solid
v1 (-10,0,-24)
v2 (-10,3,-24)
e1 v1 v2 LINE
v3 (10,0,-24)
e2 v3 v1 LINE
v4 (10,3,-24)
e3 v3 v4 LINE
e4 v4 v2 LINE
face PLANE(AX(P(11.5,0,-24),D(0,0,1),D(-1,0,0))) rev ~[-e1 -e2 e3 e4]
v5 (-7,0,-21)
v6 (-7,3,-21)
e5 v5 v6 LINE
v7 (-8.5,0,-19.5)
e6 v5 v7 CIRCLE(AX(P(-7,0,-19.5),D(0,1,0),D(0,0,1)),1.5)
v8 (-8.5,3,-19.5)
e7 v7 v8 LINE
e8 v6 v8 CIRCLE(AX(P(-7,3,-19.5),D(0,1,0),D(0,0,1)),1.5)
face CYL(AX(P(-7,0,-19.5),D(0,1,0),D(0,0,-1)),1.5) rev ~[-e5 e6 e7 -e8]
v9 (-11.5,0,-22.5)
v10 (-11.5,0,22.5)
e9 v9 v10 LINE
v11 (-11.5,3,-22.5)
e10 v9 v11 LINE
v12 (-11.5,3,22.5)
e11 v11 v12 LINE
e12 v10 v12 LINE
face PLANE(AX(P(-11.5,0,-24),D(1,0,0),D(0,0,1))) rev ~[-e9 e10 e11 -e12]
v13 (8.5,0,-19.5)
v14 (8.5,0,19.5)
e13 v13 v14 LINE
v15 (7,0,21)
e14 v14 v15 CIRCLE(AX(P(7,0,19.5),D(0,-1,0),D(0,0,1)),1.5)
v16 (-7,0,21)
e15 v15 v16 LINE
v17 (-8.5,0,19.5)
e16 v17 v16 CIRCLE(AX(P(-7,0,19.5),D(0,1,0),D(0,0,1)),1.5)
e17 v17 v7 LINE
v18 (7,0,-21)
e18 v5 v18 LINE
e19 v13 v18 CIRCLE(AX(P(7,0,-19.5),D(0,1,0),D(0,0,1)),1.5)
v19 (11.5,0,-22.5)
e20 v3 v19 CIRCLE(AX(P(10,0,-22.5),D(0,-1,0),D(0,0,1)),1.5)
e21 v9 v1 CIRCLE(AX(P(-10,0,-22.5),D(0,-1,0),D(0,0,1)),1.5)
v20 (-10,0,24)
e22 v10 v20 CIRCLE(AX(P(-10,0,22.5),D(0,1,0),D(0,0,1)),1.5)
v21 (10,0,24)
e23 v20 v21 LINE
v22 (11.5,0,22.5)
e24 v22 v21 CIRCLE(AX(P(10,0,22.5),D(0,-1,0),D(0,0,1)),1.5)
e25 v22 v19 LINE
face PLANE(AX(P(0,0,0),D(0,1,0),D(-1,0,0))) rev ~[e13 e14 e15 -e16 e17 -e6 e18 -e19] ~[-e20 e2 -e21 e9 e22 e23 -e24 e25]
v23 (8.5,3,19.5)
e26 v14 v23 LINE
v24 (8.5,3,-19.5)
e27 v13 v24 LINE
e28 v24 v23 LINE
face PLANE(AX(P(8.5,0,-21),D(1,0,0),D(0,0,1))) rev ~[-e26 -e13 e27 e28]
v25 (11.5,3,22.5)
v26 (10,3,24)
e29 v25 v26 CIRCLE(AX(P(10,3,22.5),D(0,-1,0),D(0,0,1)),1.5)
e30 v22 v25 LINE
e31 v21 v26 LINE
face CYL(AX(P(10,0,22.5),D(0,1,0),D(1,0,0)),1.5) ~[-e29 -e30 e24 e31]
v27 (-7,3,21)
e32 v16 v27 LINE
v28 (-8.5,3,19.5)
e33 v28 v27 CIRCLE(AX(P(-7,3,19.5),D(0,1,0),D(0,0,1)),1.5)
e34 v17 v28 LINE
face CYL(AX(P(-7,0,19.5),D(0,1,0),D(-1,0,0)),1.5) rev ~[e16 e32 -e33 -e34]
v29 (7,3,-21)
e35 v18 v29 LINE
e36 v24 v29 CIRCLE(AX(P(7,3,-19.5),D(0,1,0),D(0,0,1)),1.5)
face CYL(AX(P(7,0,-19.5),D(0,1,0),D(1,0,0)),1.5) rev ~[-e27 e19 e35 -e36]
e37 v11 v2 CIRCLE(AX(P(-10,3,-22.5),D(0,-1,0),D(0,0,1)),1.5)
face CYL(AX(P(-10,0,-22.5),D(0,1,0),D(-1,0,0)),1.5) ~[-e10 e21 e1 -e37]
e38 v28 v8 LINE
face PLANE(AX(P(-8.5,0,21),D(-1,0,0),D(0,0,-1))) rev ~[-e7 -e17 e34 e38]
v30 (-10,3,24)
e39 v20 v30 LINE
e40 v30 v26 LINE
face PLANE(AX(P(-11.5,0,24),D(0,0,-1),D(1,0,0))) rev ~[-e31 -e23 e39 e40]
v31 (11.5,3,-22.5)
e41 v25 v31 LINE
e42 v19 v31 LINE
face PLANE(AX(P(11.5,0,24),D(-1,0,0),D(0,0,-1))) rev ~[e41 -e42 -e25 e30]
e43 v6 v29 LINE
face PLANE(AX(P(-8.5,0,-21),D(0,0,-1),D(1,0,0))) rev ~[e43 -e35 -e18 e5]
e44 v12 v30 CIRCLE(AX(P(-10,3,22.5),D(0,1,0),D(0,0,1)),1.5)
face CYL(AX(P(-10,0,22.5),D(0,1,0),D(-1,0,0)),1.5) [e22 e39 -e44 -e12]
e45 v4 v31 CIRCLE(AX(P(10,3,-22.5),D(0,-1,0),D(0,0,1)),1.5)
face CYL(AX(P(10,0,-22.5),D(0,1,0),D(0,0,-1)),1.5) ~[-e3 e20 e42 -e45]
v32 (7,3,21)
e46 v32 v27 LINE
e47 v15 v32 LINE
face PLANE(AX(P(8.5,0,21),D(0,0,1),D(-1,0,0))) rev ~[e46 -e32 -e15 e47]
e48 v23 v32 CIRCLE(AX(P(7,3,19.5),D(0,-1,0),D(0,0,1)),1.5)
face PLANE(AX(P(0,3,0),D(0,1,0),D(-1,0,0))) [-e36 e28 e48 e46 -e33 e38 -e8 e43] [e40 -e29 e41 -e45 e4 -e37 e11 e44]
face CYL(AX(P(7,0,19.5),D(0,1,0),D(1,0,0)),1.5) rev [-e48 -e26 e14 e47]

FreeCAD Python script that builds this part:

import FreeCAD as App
import Part
import Sketcher
Q = App.Units.Quantity


def edges_at(feature, points):
    """Names of the edges that pass closest to the given points."""
    edges = feature.Shape.Edges
    near = lambda p: min(range(len(edges)), key=lambda i: edges[i].distToShape(Part.Vertex(*p))[0])
    return sorted({f"Edge{near(p) + 1}" for p in points})

doc = App.newDocument("Part")
body = doc.addObject("PartDesign::Body", "Body")

# Sketch on XZ plane
sketch1 = body.newObject("Sketcher::SketchObject", "Sketch")
sketch1.AttachmentSupport = (doc.getObject("XZ_Plane"), [""])
sketch1.MapMode = "FlatFace"
sketch1.addGeometry(Part.LineSegment(App.Vector(-12, -24, 0), App.Vector(-12, 24, 0)), False)
sketch1.addGeometry(Part.LineSegment(App.Vector(-12, 24, 0), App.Vector(12, 24, 0)), False)
sketch1.addGeometry(Part.LineSegment(App.Vector(12, 24, 0), App.Vector(12, -24, 0)), False)
sketch1.addGeometry(Part.LineSegment(App.Vector(12, -24, 0), App.Vector(-12, -24, 0)), False)
sketch1.addGeometry(Part.LineSegment(App.Vector(8, -21, 0), App.Vector(8, 21, 0)), False)
sketch1.addGeometry(Part.LineSegment(App.Vector(8, 21, 0), App.Vector(-8, 21, 0)), False)
sketch1.addGeometry(Part.LineSegment(App.Vector(-8, 21, 0), App.Vector(-8, -21, 0)), False)
sketch1.addGeometry(Part.LineSegment(App.Vector(-8, -21, 0), App.Vector(8, -21, 0)), False)
sketch1.addConstraint(Sketcher.Constraint("Coincident", 0, 2, 1, 1))
sketch1.addConstraint(Sketcher.Constraint("Coincident", 1, 2, 2, 1))
sketch1.addConstraint(Sketcher.Constraint("Coincident", 2, 2, 3, 1))
sketch1.addConstraint(Sketcher.Constraint("Coincident", 3, 2, 0, 1))
sketch1.addConstraint(Sketcher.Constraint("Coincident", 4, 2, 5, 1))
sketch1.addConstraint(Sketcher.Constraint("Coincident", 5, 2, 6, 1))
sketch1.addConstraint(Sketcher.Constraint("Coincident", 6, 2, 7, 1))
sketch1.addConstraint(Sketcher.Constraint("Coincident", 7, 2, 4, 1))
sketch1.addConstraint(Sketcher.Constraint("Vertical", 0))
sketch1.addConstraint(Sketcher.Constraint("Horizontal", 1))
sketch1.addConstraint(Sketcher.Constraint("Vertical", 2))
sketch1.addConstraint(Sketcher.Constraint("Horizontal", 3))
sketch1.addConstraint(Sketcher.Constraint("Vertical", 4))
sketch1.addConstraint(Sketcher.Constraint("Horizontal", 5))
sketch1.addConstraint(Sketcher.Constraint("Vertical", 6))
sketch1.addConstraint(Sketcher.Constraint("Horizontal", 7))
sketch1.addConstraint(Sketcher.Constraint("Symmetric", 0, 2, 2, 2, -1, 1))
sketch1.addConstraint(Sketcher.Constraint("Symmetric", 4, 2, 6, 2, -1, 1))
sketch1.addConstraint(Sketcher.Constraint("DistanceX", 1, 1, 1, 2, Q("23 mm")))
sketch1.addConstraint(Sketcher.Constraint("DistanceY", 0, 1, 0, 2, Q("48 mm")))
sketch1.addConstraint(Sketcher.Constraint("DistanceX", 4, 2, 1, 2, Q("3 mm")))
sketch1.addConstraint(Sketcher.Constraint("DistanceY", 4, 2, 1, 2, Q("3 mm")))
pad1 = body.newObject("PartDesign::Pad", "Pad")
pad1.Profile = sketch1
pad1.Length = 3
pad1.Reversed = True
doc.recompute()

fillet = body.newObject("PartDesign::Fillet", "Fillet")
fillet.Base = (pad1, edges_at(pad1, [
    (11.5, 1.5, 24),
    (-11.5, 1.5, 24),
    (-11.5, 1.5, -24),
    (11.5, 1.5, -24),
]))
fillet.Radius = 1.5
doc.recompute()

fillet2 = body.newObject("PartDesign::Fillet", "Fillet001")
fillet2.Base = (fillet, edges_at(fillet, [
    (8.5, 1.5, -21),
    (8.5, 1.5, 21),
    (-8.5, 1.5, 21),
    (-8.5, 1.5, -21),
]))
fillet2.Radius = 1.5

doc.recompute()
